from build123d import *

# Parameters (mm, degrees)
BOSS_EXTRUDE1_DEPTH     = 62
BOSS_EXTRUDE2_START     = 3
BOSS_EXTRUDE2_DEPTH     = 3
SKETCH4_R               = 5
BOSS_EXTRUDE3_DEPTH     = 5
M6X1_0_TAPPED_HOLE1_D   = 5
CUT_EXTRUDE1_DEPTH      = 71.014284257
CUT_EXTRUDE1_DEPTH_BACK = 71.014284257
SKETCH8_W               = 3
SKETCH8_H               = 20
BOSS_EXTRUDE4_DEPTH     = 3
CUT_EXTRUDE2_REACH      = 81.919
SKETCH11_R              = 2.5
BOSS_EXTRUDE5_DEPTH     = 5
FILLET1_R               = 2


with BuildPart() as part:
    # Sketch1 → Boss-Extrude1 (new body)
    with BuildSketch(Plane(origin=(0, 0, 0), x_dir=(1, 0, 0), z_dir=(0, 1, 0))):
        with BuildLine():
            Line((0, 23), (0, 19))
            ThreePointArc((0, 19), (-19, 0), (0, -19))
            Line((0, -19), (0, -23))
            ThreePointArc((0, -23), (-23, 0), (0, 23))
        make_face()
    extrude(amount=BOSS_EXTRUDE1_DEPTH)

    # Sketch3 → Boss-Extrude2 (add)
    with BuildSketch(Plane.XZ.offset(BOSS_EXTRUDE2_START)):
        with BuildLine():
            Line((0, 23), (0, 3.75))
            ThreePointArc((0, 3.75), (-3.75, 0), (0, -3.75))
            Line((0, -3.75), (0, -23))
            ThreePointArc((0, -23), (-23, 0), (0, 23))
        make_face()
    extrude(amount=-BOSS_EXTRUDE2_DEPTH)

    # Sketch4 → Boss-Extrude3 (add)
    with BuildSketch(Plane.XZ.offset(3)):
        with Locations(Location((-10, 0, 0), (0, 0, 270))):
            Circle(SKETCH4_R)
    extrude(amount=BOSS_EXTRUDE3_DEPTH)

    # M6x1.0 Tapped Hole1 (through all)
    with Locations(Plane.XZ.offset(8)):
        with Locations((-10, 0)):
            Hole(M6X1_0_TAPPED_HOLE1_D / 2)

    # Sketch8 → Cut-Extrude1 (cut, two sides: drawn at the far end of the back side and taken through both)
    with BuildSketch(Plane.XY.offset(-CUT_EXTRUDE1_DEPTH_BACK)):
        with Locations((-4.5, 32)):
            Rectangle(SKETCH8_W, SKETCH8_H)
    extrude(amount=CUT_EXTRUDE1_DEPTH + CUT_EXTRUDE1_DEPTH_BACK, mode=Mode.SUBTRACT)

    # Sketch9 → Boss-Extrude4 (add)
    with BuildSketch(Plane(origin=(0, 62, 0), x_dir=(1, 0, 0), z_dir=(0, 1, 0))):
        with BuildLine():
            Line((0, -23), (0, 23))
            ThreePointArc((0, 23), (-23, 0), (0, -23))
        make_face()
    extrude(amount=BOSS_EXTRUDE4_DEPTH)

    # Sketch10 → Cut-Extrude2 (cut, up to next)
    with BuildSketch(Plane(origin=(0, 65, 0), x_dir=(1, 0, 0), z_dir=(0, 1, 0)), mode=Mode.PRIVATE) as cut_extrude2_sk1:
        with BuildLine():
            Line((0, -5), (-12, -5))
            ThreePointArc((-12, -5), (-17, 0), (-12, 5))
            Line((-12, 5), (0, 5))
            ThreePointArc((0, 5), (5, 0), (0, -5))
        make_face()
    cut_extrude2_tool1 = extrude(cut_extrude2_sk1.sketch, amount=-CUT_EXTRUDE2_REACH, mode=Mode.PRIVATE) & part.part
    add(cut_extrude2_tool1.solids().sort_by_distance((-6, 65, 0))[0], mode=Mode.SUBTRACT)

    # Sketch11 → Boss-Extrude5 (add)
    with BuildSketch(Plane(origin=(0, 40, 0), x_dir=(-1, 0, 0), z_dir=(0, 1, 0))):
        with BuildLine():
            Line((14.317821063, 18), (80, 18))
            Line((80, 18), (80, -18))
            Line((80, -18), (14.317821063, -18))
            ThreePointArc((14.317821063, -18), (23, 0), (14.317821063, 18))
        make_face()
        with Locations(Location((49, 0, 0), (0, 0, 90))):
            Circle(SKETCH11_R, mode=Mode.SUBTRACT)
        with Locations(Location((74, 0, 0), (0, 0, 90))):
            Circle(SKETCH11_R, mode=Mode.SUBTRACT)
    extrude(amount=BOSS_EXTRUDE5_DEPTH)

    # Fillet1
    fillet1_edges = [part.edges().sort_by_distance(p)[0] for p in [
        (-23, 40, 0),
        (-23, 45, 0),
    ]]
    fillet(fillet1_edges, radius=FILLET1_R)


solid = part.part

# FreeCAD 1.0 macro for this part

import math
import FreeCAD as App
import Part
import Sketcher

V = App.Vector


def edges_at(feature, points):
    """Names of the edges that pass closest to the given points."""
    edges = feature.Shape.Edges
    near = lambda p: min(range(len(edges)), key=lambda i: edges[i].distToShape(Part.Vertex(*p))[0])
    return sorted({f"Edge{near(p) + 1}" for p in points})


def add_polygon(sketch, points):
    """Adds a closed chain of lines whose ends are joined by coincident constraints."""
    first, n = sketch.GeometryCount, len(points)
    for a, b in zip(points, points[1:] + points[:1]):
        sketch.addGeometry(Part.LineSegment(App.Vector(*a, 0), App.Vector(*b, 0)), False)
    for i in range(n):
        sketch.addConstraint(Sketcher.Constraint("Coincident", first + i, 2, first + (i + 1) % n, 1))

doc = App.newDocument("Part")
body = doc.addObject("PartDesign::Body", "Body")

# Sketch on XZ plane
sketch1 = body.newObject("Sketcher::SketchObject", "Sketch")
sketch1.AttachmentSupport = (doc.getObject("XZ_Plane"), [""])
sketch1.MapMode = "FlatFace"
sketch1.addGeometry([
    Part.LineSegment(V(0, -19, 0), V(0, -23, 0)),
    Part.ArcOfCircle(Part.Circle(V(0, 0, 0), V(0, 0, 1), 23), math.radians(90), math.radians(270)),
    Part.LineSegment(V(0, 23, 0), V(0, 19, 0)),
    Part.ArcOfCircle(Part.Circle(V(0, 0, 0), V(0, 0, 1), 19), math.radians(90), math.radians(270)),
], False)
sketch1.addConstraint([
    Sketcher.Constraint("Coincident", 0, 2, 1, 2),
    Sketcher.Constraint("Coincident", 1, 1, 2, 1),
    Sketcher.Constraint("Coincident", 2, 2, 3, 1),
    Sketcher.Constraint("Coincident", 3, 2, 0, 1),
    Sketcher.Constraint("Vertical", 0),
    Sketcher.Constraint("Vertical", 2),
    Sketcher.Constraint("Coincident", 1, 3, -1, 1),
    Sketcher.Constraint("Coincident", 3, 3, -1, 1),
    Sketcher.Constraint("PointOnObject", 0, 2, -2),
    Sketcher.Constraint("PointOnObject", 1, 1, -2),
    Sketcher.Constraint("Radius", 1, 23.0),
    Sketcher.Constraint("Radius", 3, 19.0),
])
pad1 = body.newObject("PartDesign::Pad", "Pad")
pad1.Profile = sketch1
pad1.Length = 62
pad1.Reversed = True

# Sketch on XZ plane
sketch2 = body.newObject("Sketcher::SketchObject", "Sketch001")
sketch2.AttachmentSupport = (doc.getObject("XZ_Plane"), [""])
sketch2.MapMode = "FlatFace"
sketch2.AttachmentOffset = App.Placement(V(0, 0, 3), App.Rotation())
sketch2.addGeometry([
    Part.LineSegment(V(0, 3.8, 0), V(0, 23, 0)),
    Part.ArcOfCircle(Part.Circle(V(0, 0, 0), V(0, 0, 1), 23), math.radians(90), math.radians(270)),
    Part.LineSegment(V(0, -23, 0), V(0, -3.8, 0)),
    Part.ArcOfCircle(Part.Circle(V(0, 0, 0), V(0, 0, 1), 3.8), math.radians(90), math.radians(270)),
], False)
sketch2.addConstraint([
    Sketcher.Constraint("Coincident", 0, 2, 1, 1),
    Sketcher.Constraint("Coincident", 1, 2, 2, 1),
    Sketcher.Constraint("Coincident", 2, 2, 3, 2),
    Sketcher.Constraint("Coincident", 3, 1, 0, 1),
    Sketcher.Constraint("Vertical", 0),
    Sketcher.Constraint("Vertical", 2),
    Sketcher.Constraint("Coincident", 1, 3, -1, 1),
    Sketcher.Constraint("Coincident", 3, 3, -1, 1),
    Sketcher.Constraint("PointOnObject", 0, 2, -2),
    Sketcher.Constraint("PointOnObject", 1, 2, -2),
    Sketcher.Constraint("Radius", 1, 23.0),
    Sketcher.Constraint("Radius", 3, 3.75),
])
pad2 = body.newObject("PartDesign::Pad", "Pad001")
pad2.Profile = sketch2
pad2.Length = 3
pad2.Reversed = True

# Sketch on XZ plane
sketch3 = body.newObject("Sketcher::SketchObject", "Sketch002")
sketch3.AttachmentSupport = (doc.getObject("XZ_Plane"), [""])
sketch3.MapMode = "FlatFace"
sketch3.AttachmentOffset = App.Placement(V(0, 0, 3), App.Rotation())
sketch3.addGeometry(Part.Circle(V(-10, 0, 0), V(0, 0, 1), 5), False)
sketch3.addConstraint([
    Sketcher.Constraint("PointOnObject", 0, 3, -1),
    Sketcher.Constraint("Diameter", 0, 10.0),
    Sketcher.Constraint("DistanceX", 0, 3, -1, 1, 10.0),
])
pad3 = body.newObject("PartDesign::Pad", "Pad002")
pad3.Profile = sketch3
pad3.Length = 5

# Sketch on XZ plane
sketch4 = body.newObject("Sketcher::SketchObject", "Sketch003")
sketch4.AttachmentSupport = (doc.getObject("XZ_Plane"), [""])
sketch4.MapMode = "FlatFace"
sketch4.AttachmentOffset = App.Placement(V(0, 0, 8), App.Rotation())
sketch4.addGeometry(Part.Circle(V(-10, 0, 0), V(0, 0, 1), 2.5), False)
sketch4.addConstraint([
    Sketcher.Constraint("PointOnObject", 0, 3, -1),
    Sketcher.Constraint("Diameter", 0, 5.0),
    Sketcher.Constraint("DistanceX", 0, 3, -1, 1, 10.0),
])
doc.recompute()
hole = body.newObject("PartDesign::Hole", "Hole")
hole.Profile = sketch4
hole.ThreadType = "None"
hole.Diameter = 5
hole.DepthType = "ThroughAll"

# Sketch on XY plane
sketch5 = body.newObject("Sketcher::SketchObject", "Sketch004")
sketch5.AttachmentSupport = (doc.getObject("XY_Plane"), [""])
sketch5.MapMode = "FlatFace"
add_polygon(sketch5, [(-6, 42), (-6, 22), (-3, 22), (-3, 42)])  # lines 0-3
sketch5.addConstraint([
    Sketcher.Constraint("Vertical", 0),
    Sketcher.Constraint("Horizontal", 1),
    Sketcher.Constraint("Vertical", 2),
    Sketcher.Constraint("Horizontal", 3),
    Sketcher.Constraint("DistanceX", 1, 1, 1, 2, 3.0),
    Sketcher.Constraint("DistanceY", 0, 2, 0, 1, 20.0),
    Sketcher.Constraint("DistanceX", 0, 2, -1, 1, 6.0),
    Sketcher.Constraint("DistanceY", -1, 1, 0, 2, 22.0),
])
pocket1 = body.newObject("PartDesign::Pocket", "Pocket")
pocket1.Profile = sketch5
pocket1.Type = "ThroughAll"
pocket1.Midplane = True

# Sketch on XZ plane
sketch6 = body.newObject("Sketcher::SketchObject", "Sketch005")
sketch6.AttachmentSupport = (doc.getObject("XZ_Plane"), [""])
sketch6.MapMode = "FlatFace"
sketch6.AttachmentOffset = App.Placement(V(0, 0, -62), App.Rotation())
sketch6.addGeometry([
    Part.LineSegment(V(0, 23, 0), V(0, -23, 0)),
    Part.ArcOfCircle(Part.Circle(V(0, 0, 0), V(0, 0, 1), 23), math.radians(90), math.radians(270)),
], False)
sketch6.addConstraint([
    Sketcher.Constraint("Coincident", 0, 1, 1, 1),
    Sketcher.Constraint("Coincident", 1, 2, 0, 2),
    Sketcher.Constraint("Vertical", 0),
    Sketcher.Constraint("Coincident", 1, 3, -1, 1),
    Sketcher.Constraint("PointOnObject", 0, 1, -2),
    Sketcher.Constraint("Radius", 1, 23.0),
])
pad4 = body.newObject("PartDesign::Pad", "Pad003")
pad4.Profile = sketch6
pad4.Length = 3
pad4.Reversed = True

# Sketch on XZ plane
sketch7 = body.newObject("Sketcher::SketchObject", "Sketch006")
sketch7.AttachmentSupport = (doc.getObject("XZ_Plane"), [""])
sketch7.MapMode = "FlatFace"
sketch7.AttachmentOffset = App.Placement(V(0, 0, -65), App.Rotation())
sketch7.addGeometry([
    Part.LineSegment(V(-12, 5, 0), V(0, 5, 0)),
    Part.ArcOfCircle(Part.Circle(V(0, 0, 0), V(0, 0, 1), 5), math.radians(-90), math.radians(90)),
    Part.LineSegment(V(0, -5, 0), V(-12, -5, 0)),
    Part.ArcOfCircle(Part.Circle(V(-12, 0, 0), V(0, 0, 1), 5), math.radians(90), math.radians(270)),
], False)
sketch7.addConstraint([
    Sketcher.Constraint("Tangent", 0, 2, 1, 2),
    Sketcher.Constraint("Tangent", 1, 1, 2, 1),
    Sketcher.Constraint("Tangent", 2, 2, 3, 2),
    Sketcher.Constraint("Tangent", 3, 1, 0, 1),
    Sketcher.Constraint("Horizontal", 0),
    Sketcher.Constraint("Horizontal", 2),
    Sketcher.Constraint("Coincident", 1, 3, -1, 1),
    Sketcher.Constraint("Radius", 1, 5.0),
    Sketcher.Constraint("DistanceX", 0, 1, 0, 2, 12.0),
])
pocket2 = body.newObject("PartDesign::Pocket", "Pocket001")
pocket2.Profile = sketch7
pocket2.Type = "UpToFirst"
pocket2.Reversed = True

# Sketch on XZ plane
sketch8 = body.newObject("Sketcher::SketchObject", "Sketch007")
sketch8.AttachmentSupport = (doc.getObject("XZ_Plane"), [""])
sketch8.MapMode = "FlatFace"
sketch8.AttachmentOffset = App.Placement(V(0, 0, -40), App.Rotation())
sketch8.addGeometry([
    Part.LineSegment(V(-80, 18, 0), V(-14.3, 18, 0)),  # 0
    Part.ArcOfCircle(Part.Circle(V(0, 0, 0), V(0, 0, 1), 23), math.radians(128), math.radians(232)),  # 1
    Part.LineSegment(V(-14.3, -18, 0), V(-80, -18, 0)),  # 2
    Part.LineSegment(V(-80, -18, 0), V(-80, 18, 0)),  # 3
    Part.Circle(V(-74, 0, 0), V(0, 0, 1), 2.5),  # 4
    Part.Circle(V(-49, 0, 0), V(0, 0, 1), 2.5),  # 5
], False)
sketch8.addConstraint([
    Sketcher.Constraint("Coincident", 0, 2, 1, 1),
    Sketcher.Constraint("Coincident", 1, 2, 2, 1),
    Sketcher.Constraint("Coincident", 2, 2, 3, 1),
    Sketcher.Constraint("Coincident", 3, 2, 0, 1),
    Sketcher.Constraint("Horizontal", 0),
    Sketcher.Constraint("Horizontal", 2),
    Sketcher.Constraint("Vertical", 3),
    Sketcher.Constraint("Coincident", 1, 3, -1, 1),
    Sketcher.Constraint("Equal", 4, 5),
    Sketcher.Constraint("PointOnObject", 4, 3, -1),
    Sketcher.Constraint("PointOnObject", 5, 3, -1),
    Sketcher.Constraint("Vertical", 0, 2, 1, 2),
    Sketcher.Constraint("Diameter", 4, 5.0),
    Sketcher.Constraint("Radius", 1, 23.0),
    Sketcher.Constraint("DistanceY", 3, 1, 3, 2, 36.0),
    Sketcher.Constraint("DistanceX", 4, 3, -1, 1, 74.0),
    Sketcher.Constraint("DistanceX", 5, 3, -1, 1, 49.0),
    Sketcher.Constraint("DistanceX", 2, 2, -1, 1, 80.0),
])
pad5 = body.newObject("PartDesign::Pad", "Pad004")
pad5.Profile = sketch8
pad5.Length = 5
pad5.Reversed = True
doc.recompute()

fillet = body.newObject("PartDesign::Fillet", "Fillet")
fillet.Base = (pad5, edges_at(pad5, [(-23, 40, 0), (-23, 45, 0)]))
fillet.Radius = 2

doc.recompute()
